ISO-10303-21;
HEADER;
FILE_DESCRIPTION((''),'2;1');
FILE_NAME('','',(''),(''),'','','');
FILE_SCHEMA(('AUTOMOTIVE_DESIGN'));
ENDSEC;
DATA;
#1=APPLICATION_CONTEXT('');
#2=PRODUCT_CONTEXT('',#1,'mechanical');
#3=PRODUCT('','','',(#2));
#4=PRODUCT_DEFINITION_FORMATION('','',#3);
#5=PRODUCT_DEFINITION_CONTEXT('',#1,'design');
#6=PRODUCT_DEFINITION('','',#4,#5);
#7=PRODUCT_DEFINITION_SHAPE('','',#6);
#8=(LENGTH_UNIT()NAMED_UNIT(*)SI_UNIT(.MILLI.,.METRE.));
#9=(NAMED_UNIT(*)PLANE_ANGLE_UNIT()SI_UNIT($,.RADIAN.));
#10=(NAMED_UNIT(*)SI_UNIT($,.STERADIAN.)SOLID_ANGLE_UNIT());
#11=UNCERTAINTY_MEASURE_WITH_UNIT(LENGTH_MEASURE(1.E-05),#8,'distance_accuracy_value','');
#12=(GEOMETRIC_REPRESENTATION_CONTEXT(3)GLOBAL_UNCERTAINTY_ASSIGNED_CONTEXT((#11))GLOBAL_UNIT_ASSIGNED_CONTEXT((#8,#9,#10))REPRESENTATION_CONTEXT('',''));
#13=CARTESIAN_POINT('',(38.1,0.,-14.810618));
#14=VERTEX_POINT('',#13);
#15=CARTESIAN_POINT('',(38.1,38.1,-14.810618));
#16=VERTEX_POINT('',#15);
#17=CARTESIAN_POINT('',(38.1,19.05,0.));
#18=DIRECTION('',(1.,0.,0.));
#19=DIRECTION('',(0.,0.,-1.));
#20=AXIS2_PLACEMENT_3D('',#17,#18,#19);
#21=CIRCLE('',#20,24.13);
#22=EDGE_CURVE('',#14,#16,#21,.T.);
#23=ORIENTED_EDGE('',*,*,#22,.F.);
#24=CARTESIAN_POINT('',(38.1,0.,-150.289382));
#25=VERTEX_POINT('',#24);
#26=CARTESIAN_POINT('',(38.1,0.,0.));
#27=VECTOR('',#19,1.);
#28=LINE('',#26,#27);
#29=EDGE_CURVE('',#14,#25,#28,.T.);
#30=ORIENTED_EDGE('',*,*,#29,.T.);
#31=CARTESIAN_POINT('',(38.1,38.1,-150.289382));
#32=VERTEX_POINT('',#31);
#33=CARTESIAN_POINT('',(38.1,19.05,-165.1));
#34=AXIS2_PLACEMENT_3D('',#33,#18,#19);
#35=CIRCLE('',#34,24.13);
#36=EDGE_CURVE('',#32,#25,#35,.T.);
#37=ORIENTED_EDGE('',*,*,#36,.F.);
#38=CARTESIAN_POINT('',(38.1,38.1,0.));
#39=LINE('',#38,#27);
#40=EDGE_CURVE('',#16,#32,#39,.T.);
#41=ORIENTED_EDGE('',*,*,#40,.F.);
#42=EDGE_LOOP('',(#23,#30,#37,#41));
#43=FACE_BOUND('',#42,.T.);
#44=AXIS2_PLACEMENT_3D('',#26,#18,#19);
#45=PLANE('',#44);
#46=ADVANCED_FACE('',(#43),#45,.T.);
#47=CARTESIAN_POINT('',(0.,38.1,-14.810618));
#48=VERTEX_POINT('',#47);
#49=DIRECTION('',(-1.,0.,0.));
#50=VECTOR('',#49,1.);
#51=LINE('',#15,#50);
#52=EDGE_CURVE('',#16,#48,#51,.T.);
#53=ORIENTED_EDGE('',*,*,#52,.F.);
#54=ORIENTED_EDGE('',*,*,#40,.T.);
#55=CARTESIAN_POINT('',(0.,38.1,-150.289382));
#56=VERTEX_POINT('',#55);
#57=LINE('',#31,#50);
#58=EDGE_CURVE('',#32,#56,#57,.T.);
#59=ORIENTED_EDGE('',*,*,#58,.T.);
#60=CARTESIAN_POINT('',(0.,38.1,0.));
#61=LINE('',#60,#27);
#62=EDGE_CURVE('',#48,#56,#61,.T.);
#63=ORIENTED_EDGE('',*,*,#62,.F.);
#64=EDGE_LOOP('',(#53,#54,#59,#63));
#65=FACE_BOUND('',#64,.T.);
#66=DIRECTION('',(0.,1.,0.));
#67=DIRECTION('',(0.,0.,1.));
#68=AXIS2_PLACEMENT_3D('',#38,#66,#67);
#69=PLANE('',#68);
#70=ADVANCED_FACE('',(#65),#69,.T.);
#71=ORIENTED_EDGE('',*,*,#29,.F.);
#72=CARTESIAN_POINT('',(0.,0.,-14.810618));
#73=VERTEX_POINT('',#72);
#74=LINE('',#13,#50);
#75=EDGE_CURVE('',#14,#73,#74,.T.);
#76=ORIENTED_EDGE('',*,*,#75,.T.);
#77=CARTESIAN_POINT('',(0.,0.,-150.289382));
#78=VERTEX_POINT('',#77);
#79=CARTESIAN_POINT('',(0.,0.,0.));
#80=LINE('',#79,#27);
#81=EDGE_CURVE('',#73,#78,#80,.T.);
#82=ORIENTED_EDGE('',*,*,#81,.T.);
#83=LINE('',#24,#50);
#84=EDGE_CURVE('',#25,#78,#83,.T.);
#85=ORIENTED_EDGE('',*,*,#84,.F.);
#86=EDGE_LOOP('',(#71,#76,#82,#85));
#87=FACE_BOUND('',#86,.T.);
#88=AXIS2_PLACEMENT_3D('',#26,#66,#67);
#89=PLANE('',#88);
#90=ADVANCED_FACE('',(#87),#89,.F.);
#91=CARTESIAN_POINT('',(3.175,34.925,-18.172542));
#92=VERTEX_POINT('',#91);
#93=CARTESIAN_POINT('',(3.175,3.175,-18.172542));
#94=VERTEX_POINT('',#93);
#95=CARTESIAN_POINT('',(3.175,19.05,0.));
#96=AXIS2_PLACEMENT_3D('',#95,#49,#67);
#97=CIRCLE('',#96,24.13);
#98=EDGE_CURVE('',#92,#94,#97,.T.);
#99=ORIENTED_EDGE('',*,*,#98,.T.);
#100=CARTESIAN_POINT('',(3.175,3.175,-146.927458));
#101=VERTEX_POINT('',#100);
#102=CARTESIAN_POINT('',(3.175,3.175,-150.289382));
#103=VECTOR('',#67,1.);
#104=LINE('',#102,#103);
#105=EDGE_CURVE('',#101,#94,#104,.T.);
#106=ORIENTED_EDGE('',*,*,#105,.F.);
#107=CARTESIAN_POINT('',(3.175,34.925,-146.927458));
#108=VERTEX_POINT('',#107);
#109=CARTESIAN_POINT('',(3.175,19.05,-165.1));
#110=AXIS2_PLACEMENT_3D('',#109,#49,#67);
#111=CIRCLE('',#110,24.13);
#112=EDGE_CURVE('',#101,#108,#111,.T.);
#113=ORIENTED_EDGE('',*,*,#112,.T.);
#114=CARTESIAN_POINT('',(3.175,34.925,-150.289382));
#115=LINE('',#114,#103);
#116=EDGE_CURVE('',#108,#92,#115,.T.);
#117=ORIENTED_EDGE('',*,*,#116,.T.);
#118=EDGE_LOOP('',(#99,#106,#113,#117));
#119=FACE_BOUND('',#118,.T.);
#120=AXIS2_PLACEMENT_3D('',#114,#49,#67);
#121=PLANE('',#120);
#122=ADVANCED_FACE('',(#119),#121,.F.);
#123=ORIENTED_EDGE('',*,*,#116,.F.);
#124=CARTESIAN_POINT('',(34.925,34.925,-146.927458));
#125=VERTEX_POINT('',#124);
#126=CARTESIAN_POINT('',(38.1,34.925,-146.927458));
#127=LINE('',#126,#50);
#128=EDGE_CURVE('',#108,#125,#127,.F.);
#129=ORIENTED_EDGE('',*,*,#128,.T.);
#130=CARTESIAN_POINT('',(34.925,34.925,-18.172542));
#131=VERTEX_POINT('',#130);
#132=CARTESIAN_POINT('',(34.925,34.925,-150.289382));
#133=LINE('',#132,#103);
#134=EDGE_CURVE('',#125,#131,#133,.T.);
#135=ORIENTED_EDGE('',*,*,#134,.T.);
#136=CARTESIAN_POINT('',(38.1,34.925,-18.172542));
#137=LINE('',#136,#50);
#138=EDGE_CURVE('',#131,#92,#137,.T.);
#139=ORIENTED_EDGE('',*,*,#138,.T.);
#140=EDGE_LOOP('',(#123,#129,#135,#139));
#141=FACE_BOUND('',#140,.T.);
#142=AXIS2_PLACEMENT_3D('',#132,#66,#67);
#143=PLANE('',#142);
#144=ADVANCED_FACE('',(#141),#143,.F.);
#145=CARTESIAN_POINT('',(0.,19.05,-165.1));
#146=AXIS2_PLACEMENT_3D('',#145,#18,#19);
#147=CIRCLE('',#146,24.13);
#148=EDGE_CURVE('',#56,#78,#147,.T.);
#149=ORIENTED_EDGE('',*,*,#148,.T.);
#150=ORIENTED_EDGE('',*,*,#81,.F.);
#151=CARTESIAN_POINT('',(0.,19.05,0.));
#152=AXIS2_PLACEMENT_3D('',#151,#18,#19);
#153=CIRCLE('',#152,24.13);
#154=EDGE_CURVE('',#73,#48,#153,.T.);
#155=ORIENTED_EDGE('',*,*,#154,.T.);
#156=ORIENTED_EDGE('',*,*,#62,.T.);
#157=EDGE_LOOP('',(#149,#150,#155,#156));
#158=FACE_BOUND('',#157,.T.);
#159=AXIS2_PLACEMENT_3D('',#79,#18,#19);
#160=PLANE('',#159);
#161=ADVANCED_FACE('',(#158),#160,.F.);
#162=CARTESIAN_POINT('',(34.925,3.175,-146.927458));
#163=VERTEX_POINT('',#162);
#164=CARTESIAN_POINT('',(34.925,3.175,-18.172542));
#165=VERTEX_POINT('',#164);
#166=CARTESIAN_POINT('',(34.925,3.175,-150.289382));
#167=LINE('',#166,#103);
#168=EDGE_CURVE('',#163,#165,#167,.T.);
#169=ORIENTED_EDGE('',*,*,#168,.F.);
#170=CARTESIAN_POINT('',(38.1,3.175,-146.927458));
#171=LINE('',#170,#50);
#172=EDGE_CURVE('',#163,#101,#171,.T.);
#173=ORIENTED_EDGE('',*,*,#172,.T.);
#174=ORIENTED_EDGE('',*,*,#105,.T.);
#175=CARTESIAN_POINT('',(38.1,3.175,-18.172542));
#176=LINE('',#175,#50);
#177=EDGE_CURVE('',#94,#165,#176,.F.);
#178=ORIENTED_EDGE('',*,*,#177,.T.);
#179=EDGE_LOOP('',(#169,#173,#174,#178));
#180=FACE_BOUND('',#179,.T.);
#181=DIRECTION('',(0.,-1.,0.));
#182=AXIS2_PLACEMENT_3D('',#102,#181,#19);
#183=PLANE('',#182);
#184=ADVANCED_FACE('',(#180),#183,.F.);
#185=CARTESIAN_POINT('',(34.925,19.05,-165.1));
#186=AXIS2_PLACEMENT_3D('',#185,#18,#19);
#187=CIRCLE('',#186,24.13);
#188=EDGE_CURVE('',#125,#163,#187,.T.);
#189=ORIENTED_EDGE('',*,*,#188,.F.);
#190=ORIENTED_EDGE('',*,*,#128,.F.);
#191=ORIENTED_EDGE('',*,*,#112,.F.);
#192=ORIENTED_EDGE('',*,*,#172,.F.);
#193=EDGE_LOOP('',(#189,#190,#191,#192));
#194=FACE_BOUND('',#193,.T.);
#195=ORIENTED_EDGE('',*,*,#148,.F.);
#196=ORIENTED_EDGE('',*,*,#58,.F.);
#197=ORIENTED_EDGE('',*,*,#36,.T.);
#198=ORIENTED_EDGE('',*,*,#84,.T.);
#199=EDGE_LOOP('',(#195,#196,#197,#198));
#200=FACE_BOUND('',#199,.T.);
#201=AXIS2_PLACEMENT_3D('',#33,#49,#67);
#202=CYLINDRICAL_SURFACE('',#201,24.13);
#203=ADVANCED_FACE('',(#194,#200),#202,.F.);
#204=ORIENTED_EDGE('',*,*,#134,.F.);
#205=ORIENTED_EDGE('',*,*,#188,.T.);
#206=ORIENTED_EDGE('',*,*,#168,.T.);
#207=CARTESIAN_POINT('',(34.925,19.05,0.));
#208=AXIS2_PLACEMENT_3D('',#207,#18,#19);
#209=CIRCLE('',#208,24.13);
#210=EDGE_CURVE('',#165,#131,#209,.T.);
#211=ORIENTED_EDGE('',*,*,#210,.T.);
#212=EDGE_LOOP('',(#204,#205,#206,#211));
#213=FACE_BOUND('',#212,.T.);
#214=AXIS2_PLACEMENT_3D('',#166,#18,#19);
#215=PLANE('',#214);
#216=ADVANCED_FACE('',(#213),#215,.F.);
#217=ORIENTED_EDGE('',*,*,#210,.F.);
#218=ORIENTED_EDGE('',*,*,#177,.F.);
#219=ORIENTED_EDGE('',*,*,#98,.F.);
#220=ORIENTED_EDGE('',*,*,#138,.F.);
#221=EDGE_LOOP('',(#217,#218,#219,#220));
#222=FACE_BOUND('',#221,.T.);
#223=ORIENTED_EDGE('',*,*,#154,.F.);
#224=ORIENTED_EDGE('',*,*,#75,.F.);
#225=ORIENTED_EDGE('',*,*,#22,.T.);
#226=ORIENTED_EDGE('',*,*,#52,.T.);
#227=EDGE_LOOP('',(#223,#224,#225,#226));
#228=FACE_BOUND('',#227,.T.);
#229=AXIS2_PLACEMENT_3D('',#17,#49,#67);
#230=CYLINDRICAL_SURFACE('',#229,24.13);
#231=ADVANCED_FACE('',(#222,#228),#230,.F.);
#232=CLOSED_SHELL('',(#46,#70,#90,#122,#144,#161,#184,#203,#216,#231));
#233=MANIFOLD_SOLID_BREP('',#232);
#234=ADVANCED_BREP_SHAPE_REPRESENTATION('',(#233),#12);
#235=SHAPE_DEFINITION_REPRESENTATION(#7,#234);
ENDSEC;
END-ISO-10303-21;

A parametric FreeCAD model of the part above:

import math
import FreeCAD as App
import Part
import Sketcher
Q = App.Units.Quantity


def add_polygon(sketch, points):
    """Adds a closed chain of lines whose ends are joined by coincident constraints."""
    first, n = sketch.GeometryCount, len(points)
    for a, b in zip(points, points[1:] + points[:1]):
        sketch.addGeometry(Part.LineSegment(App.Vector(*a, 0), App.Vector(*b, 0)), False)
    for i in range(n):
        sketch.addConstraint(Sketcher.Constraint("Coincident", first + i, 2, first + (i + 1) % n, 1))

doc = App.newDocument("Part")
body = doc.addObject("PartDesign::Body", "Body")

# Sketch on YZ plane
sketch1 = doc.addObject("Sketcher::SketchObject", "Sketch")
body.addObject(sketch1)
sketch1.AttachmentSupport = (doc.YZ_Plane, [""])
sketch1.MapMode = "FlatFace"
sketch1.addGeometry([
    Part.ArcOfCircle(Part.Circle(App.Vector(19, 0, 0), App.Vector(0, 0, 1), 24), math.radians(-142), math.radians(-90)),  # 0
    Part.LineSegment(App.Vector(0, -15, 0), App.Vector(0, -150, 0)),  # 1
    Part.ArcOfCircle(Part.Circle(App.Vector(19, -165, 0), App.Vector(0, 0, 1), 24), math.radians(38), math.radians(142)),  # 2
    Part.LineSegment(App.Vector(38, -150, 0), App.Vector(38, -15, 0)),  # 3
    Part.ArcOfCircle(Part.Circle(App.Vector(19, 0, 0), App.Vector(0, 0, 1), 24), math.radians(-90), math.radians(-38)),  # 4
], False)
sketch1.addConstraint([
    Sketcher.Constraint("Coincident", 0, 1, 1, 1),
    Sketcher.Constraint("Coincident", 1, 2, 2, 2),
    Sketcher.Constraint("Coincident", 2, 1, 3, 1),
    Sketcher.Constraint("Coincident", 3, 2, 4, 2),
    Sketcher.Constraint("Tangent", 4, 1, 0, 2),
    Sketcher.Constraint("Vertical", 1),
    Sketcher.Constraint("Vertical", 3),
    Sketcher.Constraint("Equal", 0, 2),
    Sketcher.Constraint("Equal", 2, 4),
    Sketcher.Constraint("PointOnObject", 0, 3, -1),
    Sketcher.Constraint("PointOnObject", 0, 1, -2),
    Sketcher.Constraint("Horizontal", 1, 2, 2, 1),
    Sketcher.Constraint("Horizontal", 0, 1, 3, 2),
    Sketcher.Constraint("Vertical", 2, 3, 4, 1),
    Sketcher.Constraint("Radius", 0, Q("0.95 in")),
    Sketcher.Constraint("DistanceY", 2, 3, -1, 1, Q("6.5 in")),
    Sketcher.Constraint("DistanceX", -1, 1, 2, 1, Q("1.5 in")),
])
pad1 = doc.addObject("PartDesign::Pad", "Pad")
body.addObject(pad1)
pad1.Profile = sketch1
pad1.Length = Q("1.5 in")

# Sketch on XY plane
sketch2 = doc.addObject("Sketcher::SketchObject", "Sketch001")
body.addObject(sketch2)
sketch2.AttachmentSupport = (doc.XY_Plane, [""])
sketch2.MapMode = "FlatFace"
add_polygon(sketch2, [(3, 35), (3, 3), (35, 3), (35, 35)])  # lines 0-3
sketch2.addConstraint([
    Sketcher.Constraint("Vertical", 0),
    Sketcher.Constraint("Horizontal", 1),
    Sketcher.Constraint("Vertical", 2),
    Sketcher.Constraint("Horizontal", 3),
    Sketcher.Constraint("Equal", 3, 0),
    Sketcher.Constraint("DistanceX", 1, 1, 1, 2, Q("1.25 in")),
    Sketcher.Constraint("DistanceX", -1, 1, 0, 2, Q("0.125 in")),
    Sketcher.Constraint("DistanceY", -1, 1, 0, 2, Q("0.125 in")),
])
pocket1 = doc.addObject("PartDesign::Pocket", "Pocket")
body.addObject(pocket1)
pocket1.Profile = sketch2
pocket1.Type = "ThroughAll"

doc.recompute()
